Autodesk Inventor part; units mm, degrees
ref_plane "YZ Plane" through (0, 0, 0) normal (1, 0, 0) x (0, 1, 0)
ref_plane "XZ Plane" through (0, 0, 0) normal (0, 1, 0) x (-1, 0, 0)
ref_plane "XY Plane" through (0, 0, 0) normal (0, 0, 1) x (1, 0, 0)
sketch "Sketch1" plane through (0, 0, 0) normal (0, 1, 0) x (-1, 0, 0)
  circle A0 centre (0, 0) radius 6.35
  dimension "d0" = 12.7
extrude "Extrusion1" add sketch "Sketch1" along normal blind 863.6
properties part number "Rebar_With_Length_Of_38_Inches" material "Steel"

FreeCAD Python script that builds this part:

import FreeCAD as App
import Part
import Sketcher

V = App.Vector
Q = App.Units.Quantity

doc = App.newDocument("Part")
params = doc.addObject("Spreadsheet::Sheet", "Params")
for row, (alias, value) in enumerate([
    ("sketch1_diameter", "0.5 in"),
    ("pad1_length", "34 in"),
], start=1):
    params.set(f"A{row}", alias)
    params.set(f"B{row}", "=" + value)
    params.setAlias(f"B{row}", alias)

body = doc.addObject("PartDesign::Body", "Body")

# Sketch on XZ plane
sketch1 = body.newObject("Sketcher::SketchObject", "Sketch")
sketch1.AttachmentSupport = (doc.getObject("XZ_Plane"), [""])
sketch1.MapMode = "FlatFace"
sketch1.addGeometry(Part.Circle(V(0, 0, 0), V(0, 0, 1), 6), False)
sketch1.addConstraint([
    Sketcher.Constraint("Coincident", 0, 3, -1, 1),
    Sketcher.Constraint("Diameter", 0, Q("0.5 in")),
])
sketch1.setExpression("Constraints[1]", "Params.sketch1_diameter")
pad1 = body.newObject("PartDesign::Pad", "Pad")
pad1.Profile = sketch1
pad1.setExpression("Length", "Params.pad1_length")
pad1.Reversed = True

doc.recompute()
